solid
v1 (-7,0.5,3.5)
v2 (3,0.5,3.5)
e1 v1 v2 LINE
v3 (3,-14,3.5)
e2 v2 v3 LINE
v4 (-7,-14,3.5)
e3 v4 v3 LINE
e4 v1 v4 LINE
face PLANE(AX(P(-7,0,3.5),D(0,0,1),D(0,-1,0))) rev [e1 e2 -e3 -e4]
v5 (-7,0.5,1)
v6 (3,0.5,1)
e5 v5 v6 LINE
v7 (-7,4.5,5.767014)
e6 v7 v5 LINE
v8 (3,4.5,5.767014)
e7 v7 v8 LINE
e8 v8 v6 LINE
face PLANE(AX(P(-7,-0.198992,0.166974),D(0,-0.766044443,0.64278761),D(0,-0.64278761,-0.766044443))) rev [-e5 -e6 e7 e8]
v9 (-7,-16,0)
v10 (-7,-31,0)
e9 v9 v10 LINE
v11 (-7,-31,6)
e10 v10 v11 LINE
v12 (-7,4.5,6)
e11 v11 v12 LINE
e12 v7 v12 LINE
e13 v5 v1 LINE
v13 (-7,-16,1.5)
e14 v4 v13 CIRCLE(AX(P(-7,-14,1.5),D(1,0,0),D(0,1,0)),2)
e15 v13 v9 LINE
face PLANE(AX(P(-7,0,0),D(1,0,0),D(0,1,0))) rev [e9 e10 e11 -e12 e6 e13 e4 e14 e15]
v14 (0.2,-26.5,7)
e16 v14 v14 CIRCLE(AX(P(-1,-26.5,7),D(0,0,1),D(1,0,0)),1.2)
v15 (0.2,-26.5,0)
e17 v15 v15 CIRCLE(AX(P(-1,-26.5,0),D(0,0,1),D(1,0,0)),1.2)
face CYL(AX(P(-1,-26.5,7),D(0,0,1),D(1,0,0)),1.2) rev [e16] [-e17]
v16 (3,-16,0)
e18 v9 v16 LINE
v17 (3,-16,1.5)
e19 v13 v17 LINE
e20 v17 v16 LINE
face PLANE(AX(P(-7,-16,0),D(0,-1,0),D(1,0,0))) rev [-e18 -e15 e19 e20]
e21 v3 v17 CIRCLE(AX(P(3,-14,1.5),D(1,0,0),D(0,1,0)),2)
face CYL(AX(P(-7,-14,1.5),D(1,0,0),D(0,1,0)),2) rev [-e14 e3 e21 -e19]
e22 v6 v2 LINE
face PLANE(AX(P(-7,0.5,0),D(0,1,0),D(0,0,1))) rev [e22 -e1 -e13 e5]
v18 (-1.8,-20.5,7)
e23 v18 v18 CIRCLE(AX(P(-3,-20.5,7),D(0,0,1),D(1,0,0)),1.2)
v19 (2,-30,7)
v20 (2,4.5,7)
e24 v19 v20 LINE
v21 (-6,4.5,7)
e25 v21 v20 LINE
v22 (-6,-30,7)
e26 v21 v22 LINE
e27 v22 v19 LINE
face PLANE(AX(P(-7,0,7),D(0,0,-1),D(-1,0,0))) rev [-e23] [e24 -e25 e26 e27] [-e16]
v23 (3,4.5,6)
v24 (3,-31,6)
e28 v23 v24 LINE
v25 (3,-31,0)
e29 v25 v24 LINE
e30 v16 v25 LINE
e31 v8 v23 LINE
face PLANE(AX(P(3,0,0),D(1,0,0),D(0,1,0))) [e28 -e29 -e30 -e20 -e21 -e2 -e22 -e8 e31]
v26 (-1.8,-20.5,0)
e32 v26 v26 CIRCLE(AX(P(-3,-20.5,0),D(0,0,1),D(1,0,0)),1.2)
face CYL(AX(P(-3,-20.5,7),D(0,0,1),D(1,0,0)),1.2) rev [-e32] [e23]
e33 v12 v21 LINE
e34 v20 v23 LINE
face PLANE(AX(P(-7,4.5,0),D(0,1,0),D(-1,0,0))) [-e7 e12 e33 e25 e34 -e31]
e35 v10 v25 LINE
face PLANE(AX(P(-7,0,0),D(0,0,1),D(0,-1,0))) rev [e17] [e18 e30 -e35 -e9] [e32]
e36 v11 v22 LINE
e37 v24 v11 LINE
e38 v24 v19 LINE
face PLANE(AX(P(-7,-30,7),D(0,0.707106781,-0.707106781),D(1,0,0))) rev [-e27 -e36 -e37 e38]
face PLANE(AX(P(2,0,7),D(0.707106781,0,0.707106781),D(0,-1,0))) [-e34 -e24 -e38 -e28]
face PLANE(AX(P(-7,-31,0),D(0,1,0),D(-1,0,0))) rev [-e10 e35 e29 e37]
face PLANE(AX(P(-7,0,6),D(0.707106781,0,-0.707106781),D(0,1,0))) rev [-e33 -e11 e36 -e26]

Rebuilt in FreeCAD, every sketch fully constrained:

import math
import FreeCAD as App
import Part
import Sketcher
from FreeCAD import Vector
Q = App.Units.Quantity


def edges_at(feature, points):
    """Names of the edges that pass closest to the given points."""
    edges = feature.Shape.Edges
    near = lambda p: min(range(len(edges)), key=lambda i: edges[i].distToShape(Part.Vertex(*p))[0])
    return sorted({f"Edge{near(p) + 1}" for p in points})

doc = App.newDocument("Part")
body = doc.addObject("PartDesign::Body", "Body")

# Sketch on YZ plane
sketch1 = doc.addObject("Sketcher::SketchObject", "Sketch")
body.addObject(sketch1)
sketch1.AttachmentSupport = (doc.YZ_Plane, [""])
sketch1.MapMode = "FlatFace"
sketch1.AttachmentOffset = App.Placement(Vector(0, 0, 3), App.Rotation())
sketch1.addGeometry([
    Part.LineSegment(Vector(-31, 7, 0), Vector(-31, 0, 0)),  # 0
    Part.LineSegment(Vector(-31, 0, 0), Vector(-16, 0, 0)),  # 1
    Part.LineSegment(Vector(-16, 0, 0), Vector(-16, 1.5, 0)),  # 2
    Part.ArcOfCircle(Part.Circle(Vector(-14, 1.5, 0), Vector(0, 0, 1), 2), math.radians(90), math.radians(180)),  # 3
    Part.LineSegment(Vector(-14, 3.5, 0), Vector(0.5, 3.5, 0)),  # 4
    Part.LineSegment(Vector(0.5, 3.5, 0), Vector(0.5, 1, 0)),  # 5
    Part.LineSegment(Vector(0.5, 1, 0), Vector(4.5, 5.8, 0)),  # 6
    Part.LineSegment(Vector(4.5, 5.8, 0), Vector(4.5, 7, 0)),  # 7
    Part.LineSegment(Vector(4.5, 7, 0), Vector(-31, 7, 0)),  # 8
], False)
sketch1.addConstraint([
    Sketcher.Constraint("Coincident", 0, 2, 1, 1),
    Sketcher.Constraint("Coincident", 1, 2, 2, 1),
    Sketcher.Constraint("Tangent", 2, 2, 3, 2),
    Sketcher.Constraint("Tangent", 3, 1, 4, 1),
    Sketcher.Constraint("Coincident", 4, 2, 5, 1),
    Sketcher.Constraint("Coincident", 5, 2, 6, 1),
    Sketcher.Constraint("Coincident", 6, 2, 7, 1),
    Sketcher.Constraint("Coincident", 7, 2, 8, 1),
    Sketcher.Constraint("Coincident", 8, 2, 0, 1),
    Sketcher.Constraint("Vertical", 0),
    Sketcher.Constraint("Horizontal", 1),
    Sketcher.Constraint("Vertical", 2),
    Sketcher.Constraint("Horizontal", 4),
    Sketcher.Constraint("Vertical", 5),
    Sketcher.Constraint("Vertical", 7),
    Sketcher.Constraint("Horizontal", 8),
    Sketcher.Constraint("PointOnObject", 0, 2, -1),
    Sketcher.Constraint("Radius", 3, Q("2 mm")),
    Sketcher.Constraint("DistanceX", 1, 1, 1, 2, Q("15 mm")),
    Sketcher.Constraint("DistanceY", 0, 2, 0, 1, Q("7 mm")),
    Sketcher.Constraint("Angle", 6, Q("50 deg")),
    Sketcher.Constraint("DistanceX", 4, 1, 4, 2, Q("14.5 mm")),
    Sketcher.Constraint("DistanceX", 8, 2, 8, 1, Q("35.5 mm")),
    Sketcher.Constraint("DistanceY", 2, 1, 2, 2, Q("1.5 mm")),
    Sketcher.Constraint("DistanceY", 5, 2, 5, 1, Q("2.5 mm")),
    Sketcher.Constraint("DistanceX", 3, 3, -1, 1, Q("14 mm")),
])
pad1 = doc.addObject("PartDesign::Pad", "Pad")
body.addObject(pad1)
pad1.Profile = sketch1
pad1.Length = 10
pad1.Reversed = True

# Sketch on XY plane
sketch2 = doc.addObject("Sketcher::SketchObject", "Sketch001")
body.addObject(sketch2)
sketch2.AttachmentSupport = (doc.XY_Plane, [""])
sketch2.MapMode = "FlatFace"
sketch2.AttachmentOffset = App.Placement(Vector(0, 0, 7), App.Rotation())
sketch2.addGeometry([
    Part.Circle(Vector(-1, -26.5, 0), Vector(0, 0, 1), 1.2),
    Part.Circle(Vector(-3, -20.5, 0), Vector(0, 0, 1), 1.2),
], False)
sketch2.addConstraint([
    Sketcher.Constraint("Equal", 0, 1),
    Sketcher.Constraint("Diameter", 0, Q("2.4 mm")),
    Sketcher.Constraint("DistanceX", 0, 3, -1, 1, Q("1 mm")),
    Sketcher.Constraint("DistanceX", 1, 3, -1, 1, Q("3 mm")),
    Sketcher.Constraint("DistanceY", 0, 3, 1, 3, Q("6 mm")),
    Sketcher.Constraint("DistanceY", 0, 3, -1, 1, Q("26.5 mm")),
])
doc.recompute()
hole = doc.addObject("PartDesign::Hole", "Hole")
body.addObject(hole)
hole.Profile = sketch2
hole.ThreadType = "None"
hole.Diameter = 2.4
hole.DepthType = "ThroughAll"
doc.recompute()

chamfer = doc.addObject("PartDesign::Chamfer", "Chamfer")
body.addObject(chamfer)
chamfer.Base = (hole, edges_at(hole, [(3, -13.25, 7), (-2, -31, 7), (-7, -13.25, 7)]))
chamfer.Size = 1

doc.recompute()
